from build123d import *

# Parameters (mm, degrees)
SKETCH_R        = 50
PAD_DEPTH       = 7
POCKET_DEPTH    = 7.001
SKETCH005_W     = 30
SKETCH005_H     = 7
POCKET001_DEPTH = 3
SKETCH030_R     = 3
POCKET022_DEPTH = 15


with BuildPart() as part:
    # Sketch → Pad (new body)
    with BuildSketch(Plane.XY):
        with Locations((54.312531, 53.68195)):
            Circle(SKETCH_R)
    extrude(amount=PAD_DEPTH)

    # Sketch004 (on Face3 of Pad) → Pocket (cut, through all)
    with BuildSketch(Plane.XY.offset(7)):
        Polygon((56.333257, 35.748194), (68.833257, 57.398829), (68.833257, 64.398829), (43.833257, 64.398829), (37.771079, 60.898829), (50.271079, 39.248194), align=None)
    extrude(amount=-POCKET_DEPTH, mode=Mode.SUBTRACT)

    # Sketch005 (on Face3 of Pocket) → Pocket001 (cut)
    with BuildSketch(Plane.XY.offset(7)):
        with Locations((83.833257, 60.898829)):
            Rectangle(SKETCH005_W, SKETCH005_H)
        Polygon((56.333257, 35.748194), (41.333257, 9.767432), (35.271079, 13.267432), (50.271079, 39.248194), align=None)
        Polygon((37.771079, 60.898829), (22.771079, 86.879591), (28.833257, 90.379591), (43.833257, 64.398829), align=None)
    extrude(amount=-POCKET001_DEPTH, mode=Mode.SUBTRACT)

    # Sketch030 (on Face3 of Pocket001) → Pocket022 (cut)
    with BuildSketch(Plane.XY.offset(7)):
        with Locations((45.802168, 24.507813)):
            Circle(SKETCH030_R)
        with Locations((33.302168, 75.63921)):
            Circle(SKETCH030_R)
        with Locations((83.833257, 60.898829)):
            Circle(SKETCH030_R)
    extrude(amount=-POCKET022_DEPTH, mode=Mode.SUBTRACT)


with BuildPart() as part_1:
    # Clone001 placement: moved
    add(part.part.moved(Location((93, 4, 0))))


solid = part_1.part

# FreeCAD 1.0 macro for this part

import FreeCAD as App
import Part
import Sketcher
Q = App.Units.Quantity

doc = App.newDocument("Part")
body = doc.addObject("PartDesign::Body", "Body")

# Sketch on XY plane
sketch1 = body.newObject("Sketcher::SketchObject", "Sketch")
sketch1.AttachmentSupport = (doc.getObject("XY_Plane"), [""])
sketch1.MapMode = "FlatFace"
sketch1.addGeometry(Part.Circle(App.Vector(54, 54, 0), App.Vector(0, 0, 1), 50), False)
sketch1.addConstraint(Sketcher.Constraint("Diameter", 0, Q("100 mm")))
sketch1.addConstraint(Sketcher.Constraint("DistanceX", -1, 1, 0, 3, Q("54.312531 mm")))
sketch1.addConstraint(Sketcher.Constraint("DistanceY", -1, 1, 0, 3, Q("53.68195 mm")))
pad1 = body.newObject("PartDesign::Pad", "Pad")
pad1.Profile = sketch1
pad1.Length = 7

# Sketch on XY plane
sketch2 = body.newObject("Sketcher::SketchObject", "Sketch001")
sketch2.AttachmentSupport = (doc.getObject("XY_Plane"), [""])
sketch2.MapMode = "FlatFace"
sketch2.AttachmentOffset = App.Placement(App.Vector(0, 0, 7), App.Rotation())
sketch2.addGeometry(Part.LineSegment(App.Vector(56, 36, 0), App.Vector(69, 57, 0)), False)
sketch2.addGeometry(Part.LineSegment(App.Vector(69, 57, 0), App.Vector(69, 64, 0)), False)
sketch2.addGeometry(Part.LineSegment(App.Vector(69, 64, 0), App.Vector(44, 64, 0)), False)
sketch2.addGeometry(Part.LineSegment(App.Vector(44, 64, 0), App.Vector(38, 61, 0)), False)
sketch2.addGeometry(Part.LineSegment(App.Vector(38, 61, 0), App.Vector(50, 39, 0)), False)
sketch2.addGeometry(Part.LineSegment(App.Vector(50, 39, 0), App.Vector(56, 36, 0)), False)
sketch2.addConstraint(Sketcher.Constraint("Coincident", 0, 2, 1, 1))
sketch2.addConstraint(Sketcher.Constraint("Coincident", 1, 2, 2, 1))
sketch2.addConstraint(Sketcher.Constraint("Coincident", 2, 2, 3, 1))
sketch2.addConstraint(Sketcher.Constraint("Coincident", 3, 2, 4, 1))
sketch2.addConstraint(Sketcher.Constraint("Coincident", 4, 2, 5, 1))
sketch2.addConstraint(Sketcher.Constraint("Coincident", 5, 2, 0, 1))
sketch2.addConstraint(Sketcher.Constraint("Vertical", 1))
sketch2.addConstraint(Sketcher.Constraint("Horizontal", 2))
sketch2.addConstraint(Sketcher.Constraint("Perpendicular", 3, 4))
sketch2.addConstraint(Sketcher.Constraint("Perpendicular", 0, 5))
sketch2.addConstraint(Sketcher.Constraint("Equal", 0, 4))
sketch2.addConstraint(Sketcher.Constraint("Equal", 3, 5))
sketch2.addConstraint(Sketcher.Constraint("DistanceX", 2, 2, 2, 1, Q("25 mm")))
sketch2.addConstraint(Sketcher.Constraint("DistanceY", 1, 1, 1, 2, Q("7 mm")))
sketch2.addConstraint(Sketcher.Constraint("Angle", 0, Q("60 deg")))
sketch2.addConstraint(Sketcher.Constraint("Angle", 3, Q("-150.000001 deg")))
sketch2.addConstraint(Sketcher.Constraint("DistanceY", -1, 1, 0, 2, Q("57.398829 mm")))
sketch2.addConstraint(Sketcher.Constraint("DistanceX", -1, 1, 3, 2, Q("37.771079 mm")))
pocket1 = body.newObject("PartDesign::Pocket", "Pocket")
pocket1.Profile = sketch2
pocket1.Type = "ThroughAll"

# Sketch on XY plane
sketch3 = body.newObject("Sketcher::SketchObject", "Sketch002")
sketch3.AttachmentSupport = (doc.getObject("XY_Plane"), [""])
sketch3.MapMode = "FlatFace"
sketch3.AttachmentOffset = App.Placement(App.Vector(0, 0, 7), App.Rotation())
sketch3.addGeometry(Part.LineSegment(App.Vector(69, 64, 0), App.Vector(69, 57, 0)), False)
sketch3.addGeometry(Part.LineSegment(App.Vector(69, 57, 0), App.Vector(99, 57, 0)), False)
sketch3.addGeometry(Part.LineSegment(App.Vector(99, 57, 0), App.Vector(99, 64, 0)), False)
sketch3.addGeometry(Part.LineSegment(App.Vector(99, 64, 0), App.Vector(69, 64, 0)), False)
sketch3.addGeometry(Part.LineSegment(App.Vector(41, 10, 0), App.Vector(56, 36, 0)), False)
sketch3.addGeometry(Part.LineSegment(App.Vector(56, 36, 0), App.Vector(50, 39, 0)), False)
sketch3.addGeometry(Part.LineSegment(App.Vector(50, 39, 0), App.Vector(35, 13, 0)), False)
sketch3.addGeometry(Part.LineSegment(App.Vector(35, 13, 0), App.Vector(41, 10, 0)), False)
sketch3.addGeometry(Part.LineSegment(App.Vector(23, 87, 0), App.Vector(38, 61, 0)), False)
sketch3.addGeometry(Part.LineSegment(App.Vector(38, 61, 0), App.Vector(44, 64, 0)), False)
sketch3.addGeometry(Part.LineSegment(App.Vector(44, 64, 0), App.Vector(29, 90, 0)), False)
sketch3.addGeometry(Part.LineSegment(App.Vector(29, 90, 0), App.Vector(23, 87, 0)), False)
sketch3.addConstraint(Sketcher.Constraint("Coincident", 0, 2, 1, 1))
sketch3.addConstraint(Sketcher.Constraint("Coincident", 1, 2, 2, 1))
sketch3.addConstraint(Sketcher.Constraint("Coincident", 2, 2, 3, 1))
sketch3.addConstraint(Sketcher.Constraint("Coincident", 3, 2, 0, 1))
sketch3.addConstraint(Sketcher.Constraint("Coincident", 4, 2, 5, 1))
sketch3.addConstraint(Sketcher.Constraint("Coincident", 5, 2, 6, 1))
sketch3.addConstraint(Sketcher.Constraint("Coincident", 6, 2, 7, 1))
sketch3.addConstraint(Sketcher.Constraint("Coincident", 7, 2, 4, 1))
sketch3.addConstraint(Sketcher.Constraint("Coincident", 8, 2, 9, 1))
sketch3.addConstraint(Sketcher.Constraint("Coincident", 9, 2, 10, 1))
sketch3.addConstraint(Sketcher.Constraint("Coincident", 10, 2, 11, 1))
sketch3.addConstraint(Sketcher.Constraint("Coincident", 11, 2, 8, 1))
sketch3.addConstraint(Sketcher.Constraint("Vertical", 0))
sketch3.addConstraint(Sketcher.Constraint("Horizontal", 1))
sketch3.addConstraint(Sketcher.Constraint("Vertical", 2))
sketch3.addConstraint(Sketcher.Constraint("Horizontal", 3))
sketch3.addConstraint(Sketcher.Constraint("Perpendicular", 4, 5))
sketch3.addConstraint(Sketcher.Constraint("Perpendicular", 5, 6))
sketch3.addConstraint(Sketcher.Constraint("Perpendicular", 6, 7))
sketch3.addConstraint(Sketcher.Constraint("Perpendicular", 8, 9))
sketch3.addConstraint(Sketcher.Constraint("Perpendicular", 9, 10))
sketch3.addConstraint(Sketcher.Constraint("Perpendicular", 10, 11))
sketch3.addConstraint(Sketcher.Constraint("Horizontal", 3, 2, 9, 2))
sketch3.addConstraint(Sketcher.Constraint("Equal", 6, 8))
sketch3.addConstraint(Sketcher.Constraint("Equal", 7, 9))
sketch3.addConstraint(Sketcher.Constraint("DistanceX", 1, 1, 1, 2, Q("30 mm")))
sketch3.addConstraint(Sketcher.Constraint("DistanceY", 0, 2, 0, 1, Q("7 mm")))
sketch3.addConstraint(Sketcher.Constraint("Angle", 4, Q("60 deg")))
sketch3.addConstraint(Sketcher.Constraint("Angle", 8, Q("-60 deg")))
sketch3.addConstraint(Sketcher.Constraint("Distance", 4, Q("30 mm")))
sketch3.addConstraint(Sketcher.Constraint("Distance", 5, Q("7 mm")))
sketch3.addConstraint(Sketcher.Constraint("DistanceX", 9, 2, 3, 2, Q("25 mm")))
sketch3.addConstraint(Sketcher.Constraint("DistanceX", 4, 2, 0, 2, Q("12.5 mm")))
sketch3.addConstraint(Sketcher.Constraint("DistanceY", -1, 1, 0, 2, Q("57.398829 mm")))
sketch3.addConstraint(Sketcher.Constraint("DistanceX", -1, 1, 5, 2, Q("50.271079 mm")))
sketch3.addConstraint(Sketcher.Constraint("DistanceY", -1, 1, 4, 2, Q("35.748194 mm")))
pocket2 = body.newObject("PartDesign::Pocket", "Pocket001")
pocket2.Profile = sketch3
pocket2.Length = 3

# Sketch on XY plane
sketch4 = body.newObject("Sketcher::SketchObject", "Sketch003")
sketch4.AttachmentSupport = (doc.getObject("XY_Plane"), [""])
sketch4.MapMode = "FlatFace"
sketch4.AttachmentOffset = App.Placement(App.Vector(0, 0, 7), App.Rotation())
sketch4.addGeometry(Part.Circle(App.Vector(45.8, 24.5, 0), App.Vector(0, 0, 1), 3), False)
sketch4.addGeometry(Part.Circle(App.Vector(33.3, 75.6, 0), App.Vector(0, 0, 1), 3), False)
sketch4.addGeometry(Part.Circle(App.Vector(83.8, 60.9, 0), App.Vector(0, 0, 1), 3), False)
sketch4.addConstraint(Sketcher.Constraint("Equal", 0, 1))
sketch4.addConstraint(Sketcher.Constraint("Equal", 1, 2))
sketch4.addConstraint(Sketcher.Constraint("Diameter", 0, Q("6 mm")))
sketch4.addConstraint(Sketcher.Constraint("DistanceX", 1, 3, 0, 3, Q("12.5 mm")))
sketch4.addConstraint(Sketcher.Constraint("DistanceX", -1, 1, 0, 3, Q("45.802168 mm")))
sketch4.addConstraint(Sketcher.Constraint("DistanceY", -1, 1, 1, 3, Q("75.63921 mm")))
sketch4.addConstraint(Sketcher.Constraint("DistanceY", -1, 1, 2, 3, Q("60.898829 mm")))
sketch4.addConstraint(Sketcher.Constraint("DistanceX", 0, 3, 2, 3, Q("38.031089 mm")))
sketch4.addConstraint(Sketcher.Constraint("DistanceY", -1, 1, 0, 3, Q("24.507813 mm")))
pocket3 = body.newObject("PartDesign::Pocket", "Pocket002")
pocket3.Profile = sketch4
pocket3.Length = 15
body2 = doc.addObject("PartDesign::Body", "Body001")
doc.recompute()

body.Placement = App.Placement(App.Vector(93, 4, 0), App.Rotation(App.Vector(0, 0, 1), 0))
boolean = body2.newObject("PartDesign::Boolean", "Boolean")
boolean.Type = "Fuse"
boolean.addObjects([body])

doc.recompute()
